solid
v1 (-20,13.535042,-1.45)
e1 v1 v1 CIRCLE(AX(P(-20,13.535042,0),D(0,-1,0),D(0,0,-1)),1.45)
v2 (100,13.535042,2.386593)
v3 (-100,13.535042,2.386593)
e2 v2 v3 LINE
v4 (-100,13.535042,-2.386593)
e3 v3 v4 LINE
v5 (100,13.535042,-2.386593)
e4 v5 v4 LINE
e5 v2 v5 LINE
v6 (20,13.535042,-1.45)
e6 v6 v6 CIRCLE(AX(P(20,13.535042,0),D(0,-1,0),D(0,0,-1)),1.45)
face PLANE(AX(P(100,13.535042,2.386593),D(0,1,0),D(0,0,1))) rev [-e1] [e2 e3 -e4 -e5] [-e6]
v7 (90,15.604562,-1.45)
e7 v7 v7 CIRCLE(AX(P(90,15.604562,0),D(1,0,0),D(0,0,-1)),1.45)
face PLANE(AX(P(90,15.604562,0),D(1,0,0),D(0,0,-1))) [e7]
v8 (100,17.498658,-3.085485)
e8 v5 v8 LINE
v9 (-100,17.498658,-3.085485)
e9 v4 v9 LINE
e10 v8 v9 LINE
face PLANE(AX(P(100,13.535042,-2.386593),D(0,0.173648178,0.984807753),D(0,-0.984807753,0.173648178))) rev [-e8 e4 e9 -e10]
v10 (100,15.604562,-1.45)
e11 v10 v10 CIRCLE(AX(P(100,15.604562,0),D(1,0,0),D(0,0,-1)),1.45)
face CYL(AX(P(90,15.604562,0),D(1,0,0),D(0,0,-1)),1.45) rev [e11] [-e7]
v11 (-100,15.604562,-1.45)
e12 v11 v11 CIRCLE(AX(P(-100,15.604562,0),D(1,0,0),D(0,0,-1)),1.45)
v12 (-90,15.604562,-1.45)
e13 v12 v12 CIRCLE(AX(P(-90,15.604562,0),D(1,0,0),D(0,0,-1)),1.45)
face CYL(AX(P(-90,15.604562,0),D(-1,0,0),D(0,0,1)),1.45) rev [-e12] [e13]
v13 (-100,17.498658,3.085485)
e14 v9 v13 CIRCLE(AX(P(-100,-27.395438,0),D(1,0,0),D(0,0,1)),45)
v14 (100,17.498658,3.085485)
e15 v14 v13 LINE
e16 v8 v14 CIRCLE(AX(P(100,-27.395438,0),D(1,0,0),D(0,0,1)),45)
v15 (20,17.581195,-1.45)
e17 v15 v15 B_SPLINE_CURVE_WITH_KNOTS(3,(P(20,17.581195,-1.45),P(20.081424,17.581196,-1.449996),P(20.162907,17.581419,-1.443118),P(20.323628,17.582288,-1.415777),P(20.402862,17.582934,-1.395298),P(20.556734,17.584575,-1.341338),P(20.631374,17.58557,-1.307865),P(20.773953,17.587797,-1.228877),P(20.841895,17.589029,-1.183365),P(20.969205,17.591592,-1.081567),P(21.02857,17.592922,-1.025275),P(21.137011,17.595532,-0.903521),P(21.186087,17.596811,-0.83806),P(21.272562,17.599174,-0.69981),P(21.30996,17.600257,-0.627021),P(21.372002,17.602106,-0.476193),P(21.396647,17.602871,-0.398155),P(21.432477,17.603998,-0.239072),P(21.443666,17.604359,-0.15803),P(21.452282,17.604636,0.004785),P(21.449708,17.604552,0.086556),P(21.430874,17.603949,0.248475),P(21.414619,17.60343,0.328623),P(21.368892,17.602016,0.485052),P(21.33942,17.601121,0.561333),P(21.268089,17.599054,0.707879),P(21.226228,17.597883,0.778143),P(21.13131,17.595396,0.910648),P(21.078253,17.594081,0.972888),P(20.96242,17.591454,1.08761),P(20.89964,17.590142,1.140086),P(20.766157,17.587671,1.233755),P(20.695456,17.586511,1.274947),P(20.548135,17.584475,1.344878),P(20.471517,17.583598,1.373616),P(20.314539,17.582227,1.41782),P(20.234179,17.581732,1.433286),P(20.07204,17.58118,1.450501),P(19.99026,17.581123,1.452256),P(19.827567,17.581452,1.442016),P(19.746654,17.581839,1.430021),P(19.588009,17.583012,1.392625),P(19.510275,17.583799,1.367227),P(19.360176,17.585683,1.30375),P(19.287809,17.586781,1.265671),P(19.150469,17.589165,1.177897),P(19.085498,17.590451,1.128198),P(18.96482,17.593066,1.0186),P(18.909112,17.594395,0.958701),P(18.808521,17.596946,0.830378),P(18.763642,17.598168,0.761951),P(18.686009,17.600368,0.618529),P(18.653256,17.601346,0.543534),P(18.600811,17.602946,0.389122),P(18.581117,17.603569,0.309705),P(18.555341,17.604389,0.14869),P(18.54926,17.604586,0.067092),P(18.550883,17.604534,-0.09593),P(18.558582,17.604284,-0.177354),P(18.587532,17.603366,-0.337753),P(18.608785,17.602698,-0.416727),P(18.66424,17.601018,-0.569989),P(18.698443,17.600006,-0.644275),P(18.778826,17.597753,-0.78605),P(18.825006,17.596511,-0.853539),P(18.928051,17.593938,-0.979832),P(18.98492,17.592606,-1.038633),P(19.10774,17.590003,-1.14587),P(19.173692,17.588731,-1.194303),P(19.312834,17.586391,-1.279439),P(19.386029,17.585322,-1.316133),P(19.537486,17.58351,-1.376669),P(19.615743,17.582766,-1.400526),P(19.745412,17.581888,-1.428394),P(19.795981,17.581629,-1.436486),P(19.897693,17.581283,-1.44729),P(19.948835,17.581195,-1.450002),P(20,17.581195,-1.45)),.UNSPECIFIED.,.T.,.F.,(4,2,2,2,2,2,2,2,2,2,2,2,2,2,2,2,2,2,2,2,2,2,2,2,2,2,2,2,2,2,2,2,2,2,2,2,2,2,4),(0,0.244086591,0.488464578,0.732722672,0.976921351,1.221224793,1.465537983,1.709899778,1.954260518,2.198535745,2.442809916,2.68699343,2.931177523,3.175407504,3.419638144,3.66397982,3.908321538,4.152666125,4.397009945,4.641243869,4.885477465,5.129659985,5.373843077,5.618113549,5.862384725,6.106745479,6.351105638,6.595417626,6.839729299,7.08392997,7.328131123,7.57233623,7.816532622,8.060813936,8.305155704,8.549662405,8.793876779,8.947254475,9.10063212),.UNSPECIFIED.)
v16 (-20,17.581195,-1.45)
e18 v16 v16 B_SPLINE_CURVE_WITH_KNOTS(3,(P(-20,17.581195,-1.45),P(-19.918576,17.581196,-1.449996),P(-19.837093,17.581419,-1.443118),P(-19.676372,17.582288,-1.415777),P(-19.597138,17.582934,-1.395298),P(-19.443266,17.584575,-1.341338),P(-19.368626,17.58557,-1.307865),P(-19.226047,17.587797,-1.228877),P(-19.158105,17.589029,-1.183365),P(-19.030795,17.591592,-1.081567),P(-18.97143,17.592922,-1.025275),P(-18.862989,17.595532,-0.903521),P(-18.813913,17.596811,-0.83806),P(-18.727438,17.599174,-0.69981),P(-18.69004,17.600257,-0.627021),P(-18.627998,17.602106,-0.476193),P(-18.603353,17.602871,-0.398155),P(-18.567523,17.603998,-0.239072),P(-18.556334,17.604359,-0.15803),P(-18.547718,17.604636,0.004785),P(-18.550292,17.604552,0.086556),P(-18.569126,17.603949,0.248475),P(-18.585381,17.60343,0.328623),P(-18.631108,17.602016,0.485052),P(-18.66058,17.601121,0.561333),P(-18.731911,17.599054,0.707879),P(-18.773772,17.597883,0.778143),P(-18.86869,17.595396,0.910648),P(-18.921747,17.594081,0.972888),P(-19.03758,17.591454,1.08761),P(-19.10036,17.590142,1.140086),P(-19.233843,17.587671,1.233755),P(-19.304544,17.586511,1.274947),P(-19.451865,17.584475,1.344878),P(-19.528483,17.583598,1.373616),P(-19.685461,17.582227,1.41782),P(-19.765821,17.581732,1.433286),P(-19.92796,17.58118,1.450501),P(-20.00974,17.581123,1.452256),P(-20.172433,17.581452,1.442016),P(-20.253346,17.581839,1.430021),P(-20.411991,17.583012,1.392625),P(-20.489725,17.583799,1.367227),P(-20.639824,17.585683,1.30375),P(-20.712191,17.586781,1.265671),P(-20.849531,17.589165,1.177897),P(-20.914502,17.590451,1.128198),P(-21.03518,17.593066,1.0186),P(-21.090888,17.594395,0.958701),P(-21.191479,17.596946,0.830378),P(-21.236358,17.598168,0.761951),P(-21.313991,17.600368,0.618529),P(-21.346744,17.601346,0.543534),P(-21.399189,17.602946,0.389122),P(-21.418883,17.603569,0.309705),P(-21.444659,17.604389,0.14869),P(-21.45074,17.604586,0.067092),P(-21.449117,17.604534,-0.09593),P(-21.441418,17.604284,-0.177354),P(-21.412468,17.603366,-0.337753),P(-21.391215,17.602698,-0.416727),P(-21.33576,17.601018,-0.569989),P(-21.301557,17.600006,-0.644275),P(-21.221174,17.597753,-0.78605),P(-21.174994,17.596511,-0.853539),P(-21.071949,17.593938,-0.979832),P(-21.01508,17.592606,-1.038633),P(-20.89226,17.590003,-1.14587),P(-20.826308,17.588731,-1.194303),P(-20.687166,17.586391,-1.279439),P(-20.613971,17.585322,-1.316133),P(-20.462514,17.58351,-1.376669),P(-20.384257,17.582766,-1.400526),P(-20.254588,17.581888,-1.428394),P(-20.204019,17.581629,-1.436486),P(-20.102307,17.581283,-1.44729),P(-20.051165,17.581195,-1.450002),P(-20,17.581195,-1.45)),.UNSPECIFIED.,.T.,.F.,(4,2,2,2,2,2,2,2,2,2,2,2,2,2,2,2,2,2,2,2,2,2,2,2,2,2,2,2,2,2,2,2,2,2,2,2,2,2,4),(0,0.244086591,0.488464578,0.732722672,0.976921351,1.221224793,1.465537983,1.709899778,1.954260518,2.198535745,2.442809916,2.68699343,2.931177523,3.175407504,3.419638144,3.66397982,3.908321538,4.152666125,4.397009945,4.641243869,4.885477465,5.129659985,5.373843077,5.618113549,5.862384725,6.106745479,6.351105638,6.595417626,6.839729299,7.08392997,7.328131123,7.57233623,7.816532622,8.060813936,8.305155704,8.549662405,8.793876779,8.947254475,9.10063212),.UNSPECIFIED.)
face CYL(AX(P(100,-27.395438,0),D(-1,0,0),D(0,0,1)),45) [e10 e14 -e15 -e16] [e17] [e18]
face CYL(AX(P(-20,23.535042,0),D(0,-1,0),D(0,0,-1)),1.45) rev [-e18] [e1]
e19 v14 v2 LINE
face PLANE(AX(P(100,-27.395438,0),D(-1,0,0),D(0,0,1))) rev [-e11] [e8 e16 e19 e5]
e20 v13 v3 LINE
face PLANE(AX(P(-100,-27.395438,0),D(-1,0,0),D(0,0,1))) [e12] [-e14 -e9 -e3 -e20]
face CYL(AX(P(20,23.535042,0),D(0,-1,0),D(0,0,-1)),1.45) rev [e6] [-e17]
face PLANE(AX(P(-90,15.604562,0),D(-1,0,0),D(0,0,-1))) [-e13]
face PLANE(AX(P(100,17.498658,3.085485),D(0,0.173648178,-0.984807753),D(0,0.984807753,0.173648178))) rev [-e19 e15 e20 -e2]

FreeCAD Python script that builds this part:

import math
import FreeCAD as App
import Part
import Sketcher
Q = App.Units.Quantity

doc = App.newDocument("Part")
params = doc.addObject("Spreadsheet::Sheet", "Params")
for row, (alias, value) in enumerate([
    ("sketch1_radius", "45 mm"),
    ("pad1_length", "200 mm"),
    ("sketch2_diameter", "2.9 mm"),
    ("pocket1_length", "10 mm"),
    ("sketch3_diameter", "2.9 mm"),
    ("pocket2_length", "10 mm"),
], start=1):
    params.set(f"A{row}", alias)
    params.set(f"B{row}", "=" + value)
    params.setAlias(f"B{row}", alias)

body = doc.addObject("PartDesign::Body", "Body")

sketch1 = doc.addObject("Sketcher::SketchObject", "Sketch")
body.addObject(sketch1)
sketch1.AttachmentSupport = (doc.YZ_Plane, [""])
sketch1.MapMode = "FlatFace"
sketch1.addGeometry(Part.LineSegment(App.Vector(17.5, 3.1, 0), App.Vector(13.5, 2.4, 0)), False)
sketch1.addGeometry(Part.LineSegment(App.Vector(13.5, 2.4, 0), App.Vector(13.5, -2.4, 0)), False)
sketch1.addGeometry(Part.LineSegment(App.Vector(13.5, -2.4, 0), App.Vector(17.5, -3.1, 0)), False)
sketch1.addGeometry(Part.ArcOfCircle(Part.Circle(App.Vector(-27.4, 0, 0), App.Vector(0, 0, 1), 45), math.radians(-3.93), math.radians(3.93)), False)
sketch1.addConstraint(Sketcher.Constraint("Coincident", 0, 2, 1, 1))
sketch1.addConstraint(Sketcher.Constraint("Coincident", 1, 2, 2, 1))
sketch1.addConstraint(Sketcher.Constraint("Coincident", 2, 2, 3, 1))
sketch1.addConstraint(Sketcher.Constraint("Coincident", 3, 2, 0, 1))
sketch1.addConstraint(Sketcher.Constraint("Vertical", 1))
sketch1.addConstraint(Sketcher.Constraint("Symmetric", 2, 2, 3, 2, -1))
sketch1.addConstraint(Sketcher.Constraint("Equal", 0, 2))
sketch1.addConstraint(Sketcher.Constraint("Radius", 3, Q("45 mm")))
sketch1.addConstraint(Sketcher.Constraint("Angle", 0, Q("-170 deg")))
sketch1.addConstraint(Sketcher.Constraint("Distance", 0, Q("4.024761 mm")))
sketch1.addConstraint(Sketcher.Constraint("DistanceY", 1, 2, 1, 1, Q("4.773186 mm")))
sketch1.addConstraint(Sketcher.Constraint("DistanceX", 3, 3, -1, 1, Q("27.395437 mm")))
sketch1.setExpression("Constraints[7]", "Params.sketch1_radius")
pad1 = doc.addObject("PartDesign::Pad", "Pad")
body.addObject(pad1)
pad1.Profile = sketch1
pad1.setExpression("Length", "Params.pad1_length")
pad1.Midplane = True

sketch2 = doc.addObject("Sketcher::SketchObject", "Sketch001")
body.addObject(sketch2)
sketch2.AttachmentSupport = (doc.YZ_Plane, [""])
sketch2.MapMode = "FlatFace"
sketch2.AttachmentOffset = App.Placement(App.Vector(0, 0, 100), App.Rotation())
sketch2.addGeometry(Part.Circle(App.Vector(15.6, 0, 0), App.Vector(0, 0, 1), 1.4), False)
sketch2.addConstraint(Sketcher.Constraint("PointOnObject", 0, 3, -1))
sketch2.addConstraint(Sketcher.Constraint("Diameter", 0, Q("2.9 mm")))
sketch2.addConstraint(Sketcher.Constraint("DistanceX", -1, 1, 0, 3, Q("15.604562 mm")))
sketch2.setExpression("Constraints[1]", "Params.sketch2_diameter")
pocket1 = doc.addObject("PartDesign::Pocket", "Pocket")
body.addObject(pocket1)
pocket1.Profile = sketch2
pocket1.setExpression("Length", "Params.pocket1_length")
doc.recompute()

mirrored = doc.addObject("PartDesign::Mirrored", "Mirrored")
body.addObject(mirrored)
mirrored.Originals = [pocket1]
mirrored.MirrorPlane = (doc.YZ_Plane, [""])
body.Tip = mirrored

sketch3 = doc.addObject("Sketcher::SketchObject", "Sketch002")
body.addObject(sketch3)
sketch3.AttachmentSupport = (doc.XZ_Plane, [""])
sketch3.MapMode = "FlatFace"
sketch3.AttachmentOffset = App.Placement(App.Vector(0, 0, -13.535042), App.Rotation())
sketch3.addGeometry(Part.Circle(App.Vector(-20, 0, 0), App.Vector(0, 0, 1), 1.4), False)
sketch3.addGeometry(Part.Circle(App.Vector(20, 0, 0), App.Vector(0, 0, 1), 1.4), False)
sketch3.addConstraint(Sketcher.Constraint("Equal", 0, 1))
sketch3.addConstraint(Sketcher.Constraint("Symmetric", 0, 3, 1, 3, -1, 1))
sketch3.addConstraint(Sketcher.Constraint("PointOnObject", 0, 3, -1))
sketch3.addConstraint(Sketcher.Constraint("Diameter", 0, Q("2.9 mm")))
sketch3.addConstraint(Sketcher.Constraint("DistanceX", 0, 3, -1, 1, Q("20 mm")))
sketch3.setExpression("Constraints[3]", "Params.sketch3_diameter")
pocket2 = doc.addObject("PartDesign::Pocket", "Pocket001")
body.addObject(pocket2)
pocket2.Profile = sketch3
pocket2.setExpression("Length", "Params.pocket2_length")

doc.recompute()
